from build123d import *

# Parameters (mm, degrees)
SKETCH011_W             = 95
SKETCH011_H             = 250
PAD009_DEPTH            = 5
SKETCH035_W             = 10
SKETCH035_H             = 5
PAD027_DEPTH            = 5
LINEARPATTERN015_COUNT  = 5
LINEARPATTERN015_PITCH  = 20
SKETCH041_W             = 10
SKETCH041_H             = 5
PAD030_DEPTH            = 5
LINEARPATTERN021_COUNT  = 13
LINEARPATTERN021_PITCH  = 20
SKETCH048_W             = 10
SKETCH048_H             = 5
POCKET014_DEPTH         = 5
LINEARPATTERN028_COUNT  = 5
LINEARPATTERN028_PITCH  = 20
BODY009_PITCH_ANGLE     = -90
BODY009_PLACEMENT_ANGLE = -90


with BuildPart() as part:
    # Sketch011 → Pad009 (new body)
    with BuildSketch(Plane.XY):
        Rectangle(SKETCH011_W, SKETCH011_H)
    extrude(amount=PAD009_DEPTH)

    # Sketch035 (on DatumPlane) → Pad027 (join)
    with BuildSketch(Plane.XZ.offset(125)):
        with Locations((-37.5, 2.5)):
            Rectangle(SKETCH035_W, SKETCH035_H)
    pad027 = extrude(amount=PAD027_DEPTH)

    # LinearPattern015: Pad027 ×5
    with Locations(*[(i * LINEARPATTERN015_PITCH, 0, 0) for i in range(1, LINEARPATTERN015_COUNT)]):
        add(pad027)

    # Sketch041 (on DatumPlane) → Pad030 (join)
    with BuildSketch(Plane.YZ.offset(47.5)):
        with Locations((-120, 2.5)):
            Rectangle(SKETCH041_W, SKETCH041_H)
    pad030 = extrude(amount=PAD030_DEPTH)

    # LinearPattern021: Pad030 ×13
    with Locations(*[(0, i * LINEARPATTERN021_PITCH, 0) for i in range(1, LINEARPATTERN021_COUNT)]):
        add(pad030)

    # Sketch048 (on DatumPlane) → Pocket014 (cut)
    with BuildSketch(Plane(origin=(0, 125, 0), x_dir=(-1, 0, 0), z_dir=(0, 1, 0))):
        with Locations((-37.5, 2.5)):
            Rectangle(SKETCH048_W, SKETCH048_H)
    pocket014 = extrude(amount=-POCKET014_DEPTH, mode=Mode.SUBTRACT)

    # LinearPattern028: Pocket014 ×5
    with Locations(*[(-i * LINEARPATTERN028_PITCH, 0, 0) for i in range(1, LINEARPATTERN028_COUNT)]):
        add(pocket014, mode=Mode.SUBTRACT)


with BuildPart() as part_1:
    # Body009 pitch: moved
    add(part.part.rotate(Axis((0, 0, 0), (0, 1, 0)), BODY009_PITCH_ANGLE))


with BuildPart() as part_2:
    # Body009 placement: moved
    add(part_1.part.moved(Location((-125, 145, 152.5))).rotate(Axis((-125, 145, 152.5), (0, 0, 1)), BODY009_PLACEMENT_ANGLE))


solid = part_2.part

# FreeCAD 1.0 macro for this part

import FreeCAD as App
import Part
import Sketcher
Q = App.Units.Quantity

doc = App.newDocument("Part")
body = doc.addObject("PartDesign::Body", "Body")

sketch1 = body.newObject("Sketcher::SketchObject", "Sketch")
sketch1.AttachmentSupport = (doc.getObject("XY_Plane"), [""])
sketch1.MapMode = "FlatFace"
sketch1.addGeometry([
    Part.LineSegment(App.Vector(-48, 125, 0), App.Vector(-48, -125, 0)),
    Part.LineSegment(App.Vector(-48, -125, 0), App.Vector(48, -125, 0)),
    Part.LineSegment(App.Vector(48, -125, 0), App.Vector(48, 125, 0)),
    Part.LineSegment(App.Vector(48, 125, 0), App.Vector(-48, 125, 0)),
], False)
sketch1.addConstraint([
    Sketcher.Constraint("Coincident", 0, 2, 1, 1),
    Sketcher.Constraint("Coincident", 1, 2, 2, 1),
    Sketcher.Constraint("Coincident", 2, 2, 3, 1),
    Sketcher.Constraint("Coincident", 3, 2, 0, 1),
    Sketcher.Constraint("Vertical", 0),
    Sketcher.Constraint("Horizontal", 1),
    Sketcher.Constraint("Vertical", 2),
    Sketcher.Constraint("Horizontal", 3),
    Sketcher.Constraint("Symmetric", 0, 2, 2, 2, -1, 1),
    Sketcher.Constraint("DistanceX", 1, 1, 1, 2, Q("95 mm")),
    Sketcher.Constraint("DistanceY", 0, 2, 0, 1, Q("250 mm")),
])
pad1 = body.newObject("PartDesign::Pad", "Pad")
pad1.Profile = sketch1
pad1.Length = 5

sketch2 = body.newObject("Sketcher::SketchObject", "Sketch001")
sketch2.AttachmentSupport = (doc.getObject("XZ_Plane"), [""])
sketch2.MapMode = "FlatFace"
sketch2.AttachmentOffset = App.Placement(App.Vector(0, 0, 125), App.Rotation())
sketch2.addGeometry([
    Part.LineSegment(App.Vector(-42, 5, 0), App.Vector(-42, 0, 0)),
    Part.LineSegment(App.Vector(-42, 0, 0), App.Vector(-32, 0, 0)),
    Part.LineSegment(App.Vector(-32, 0, 0), App.Vector(-32, 5, 0)),
    Part.LineSegment(App.Vector(-32, 5, 0), App.Vector(-42, 5, 0)),
], False)
sketch2.addConstraint([
    Sketcher.Constraint("Coincident", 0, 2, 1, 1),
    Sketcher.Constraint("Coincident", 1, 2, 2, 1),
    Sketcher.Constraint("Coincident", 2, 2, 3, 1),
    Sketcher.Constraint("Coincident", 3, 2, 0, 1),
    Sketcher.Constraint("Vertical", 0),
    Sketcher.Constraint("Horizontal", 1),
    Sketcher.Constraint("Vertical", 2),
    Sketcher.Constraint("Horizontal", 3),
    Sketcher.Constraint("PointOnObject", 0, 2, -1),
    Sketcher.Constraint("DistanceX", 1, 1, 1, 2, Q("10 mm")),
    Sketcher.Constraint("DistanceY", 0, 2, 0, 1, Q("5 mm")),
    Sketcher.Constraint("DistanceX", 0, 2, -1, 1, Q("42.5 mm")),
])
pad2 = body.newObject("PartDesign::Pad", "Pad001")
pad2.Profile = sketch2
pad2.Length = 5
doc.recompute()

linearpattern = body.newObject("PartDesign::LinearPattern", "LinearPattern")
linearpattern.Originals = [pad2]
linearpattern.Direction = (doc.getObject("X_Axis"), [""])
linearpattern.Mode = "offset"
linearpattern.Offset = 20
linearpattern.Occurrences = 5
body.Tip = linearpattern

sketch3 = body.newObject("Sketcher::SketchObject", "Sketch002")
sketch3.AttachmentSupport = (doc.getObject("YZ_Plane"), [""])
sketch3.MapMode = "FlatFace"
sketch3.AttachmentOffset = App.Placement(App.Vector(0, 0, 47.5), App.Rotation())
sketch3.addGeometry([
    Part.LineSegment(App.Vector(-125, 5, 0), App.Vector(-125, 0, 0)),
    Part.LineSegment(App.Vector(-125, 0, 0), App.Vector(-115, 0, 0)),
    Part.LineSegment(App.Vector(-115, 0, 0), App.Vector(-115, 5, 0)),
    Part.LineSegment(App.Vector(-115, 5, 0), App.Vector(-125, 5, 0)),
], False)
sketch3.addConstraint([
    Sketcher.Constraint("Coincident", 0, 2, 1, 1),
    Sketcher.Constraint("Coincident", 1, 2, 2, 1),
    Sketcher.Constraint("Coincident", 2, 2, 3, 1),
    Sketcher.Constraint("Coincident", 3, 2, 0, 1),
    Sketcher.Constraint("Vertical", 0),
    Sketcher.Constraint("Horizontal", 1),
    Sketcher.Constraint("Vertical", 2),
    Sketcher.Constraint("Horizontal", 3),
    Sketcher.Constraint("PointOnObject", 0, 2, -1),
    Sketcher.Constraint("DistanceX", 1, 1, 1, 2, Q("10 mm")),
    Sketcher.Constraint("DistanceY", 0, 2, 0, 1, Q("5 mm")),
    Sketcher.Constraint("DistanceX", 0, 2, -1, 1, Q("125 mm")),
])
pad3 = body.newObject("PartDesign::Pad", "Pad002")
pad3.Profile = sketch3
pad3.Length = 5
doc.recompute()

linearpattern2 = body.newObject("PartDesign::LinearPattern", "LinearPattern001")
linearpattern2.Originals = [pad3]
linearpattern2.Direction = (doc.getObject("Y_Axis"), [""])
linearpattern2.Mode = "offset"
linearpattern2.Offset = 20
linearpattern2.Occurrences = 13
body.Tip = linearpattern2

sketch4 = body.newObject("Sketcher::SketchObject", "Sketch003")
sketch4.AttachmentSupport = (doc.getObject("XZ_Plane"), [""])
sketch4.MapMode = "FlatFace"
sketch4.AttachmentOffset = App.Placement(App.Vector(0, 0, -125), App.Rotation())
sketch4.addGeometry([
    Part.LineSegment(App.Vector(42, 5, 0), App.Vector(42, 0, 0)),
    Part.LineSegment(App.Vector(42, 0, 0), App.Vector(32, 0, 0)),
    Part.LineSegment(App.Vector(32, 0, 0), App.Vector(32, 5, 0)),
    Part.LineSegment(App.Vector(32, 5, 0), App.Vector(42, 5, 0)),
], False)
sketch4.addConstraint([
    Sketcher.Constraint("Coincident", 0, 2, 1, 1),
    Sketcher.Constraint("Coincident", 1, 2, 2, 1),
    Sketcher.Constraint("Coincident", 2, 2, 3, 1),
    Sketcher.Constraint("Coincident", 3, 2, 0, 1),
    Sketcher.Constraint("Vertical", 0),
    Sketcher.Constraint("Horizontal", 1),
    Sketcher.Constraint("Vertical", 2),
    Sketcher.Constraint("Horizontal", 3),
    Sketcher.Constraint("PointOnObject", 0, 2, -1),
    Sketcher.Constraint("DistanceX", 1, 2, 1, 1, Q("10 mm")),
    Sketcher.Constraint("DistanceY", 0, 2, 0, 1, Q("5 mm")),
    Sketcher.Constraint("DistanceX", -1, 1, 0, 2, Q("42.5 mm")),
])
pocket1 = body.newObject("PartDesign::Pocket", "Pocket")
pocket1.Profile = sketch4
pocket1.Length = 5
pocket1.Reversed = True
doc.recompute()

linearpattern3 = body.newObject("PartDesign::LinearPattern", "LinearPattern002")
linearpattern3.Originals = [pocket1]
linearpattern3.Direction = (doc.getObject("X_Axis"), [""])
linearpattern3.Mode = "offset"
linearpattern3.Offset = 20
linearpattern3.Occurrences = 5
linearpattern3.Reversed = True
body.Tip = linearpattern3
body2 = doc.addObject("PartDesign::Body", "Body001")
doc.recompute()

body.Placement = App.Placement(App.Vector(0, 0, 0), App.Rotation(App.Vector(0, 1, 0), 270))
boolean = body2.newObject("PartDesign::Boolean", "Boolean")
boolean.Type = "Fuse"
boolean.addObjects([body])
body3 = doc.addObject("PartDesign::Body", "Body002")
doc.recompute()

body2.Placement = App.Placement(App.Vector(-125, 145, 152.5), App.Rotation(App.Vector(0, 0, 1), 270))
boolean2 = body3.newObject("PartDesign::Boolean", "Boolean001")
boolean2.Type = "Fuse"
boolean2.addObjects([body2])

doc.recompute()
